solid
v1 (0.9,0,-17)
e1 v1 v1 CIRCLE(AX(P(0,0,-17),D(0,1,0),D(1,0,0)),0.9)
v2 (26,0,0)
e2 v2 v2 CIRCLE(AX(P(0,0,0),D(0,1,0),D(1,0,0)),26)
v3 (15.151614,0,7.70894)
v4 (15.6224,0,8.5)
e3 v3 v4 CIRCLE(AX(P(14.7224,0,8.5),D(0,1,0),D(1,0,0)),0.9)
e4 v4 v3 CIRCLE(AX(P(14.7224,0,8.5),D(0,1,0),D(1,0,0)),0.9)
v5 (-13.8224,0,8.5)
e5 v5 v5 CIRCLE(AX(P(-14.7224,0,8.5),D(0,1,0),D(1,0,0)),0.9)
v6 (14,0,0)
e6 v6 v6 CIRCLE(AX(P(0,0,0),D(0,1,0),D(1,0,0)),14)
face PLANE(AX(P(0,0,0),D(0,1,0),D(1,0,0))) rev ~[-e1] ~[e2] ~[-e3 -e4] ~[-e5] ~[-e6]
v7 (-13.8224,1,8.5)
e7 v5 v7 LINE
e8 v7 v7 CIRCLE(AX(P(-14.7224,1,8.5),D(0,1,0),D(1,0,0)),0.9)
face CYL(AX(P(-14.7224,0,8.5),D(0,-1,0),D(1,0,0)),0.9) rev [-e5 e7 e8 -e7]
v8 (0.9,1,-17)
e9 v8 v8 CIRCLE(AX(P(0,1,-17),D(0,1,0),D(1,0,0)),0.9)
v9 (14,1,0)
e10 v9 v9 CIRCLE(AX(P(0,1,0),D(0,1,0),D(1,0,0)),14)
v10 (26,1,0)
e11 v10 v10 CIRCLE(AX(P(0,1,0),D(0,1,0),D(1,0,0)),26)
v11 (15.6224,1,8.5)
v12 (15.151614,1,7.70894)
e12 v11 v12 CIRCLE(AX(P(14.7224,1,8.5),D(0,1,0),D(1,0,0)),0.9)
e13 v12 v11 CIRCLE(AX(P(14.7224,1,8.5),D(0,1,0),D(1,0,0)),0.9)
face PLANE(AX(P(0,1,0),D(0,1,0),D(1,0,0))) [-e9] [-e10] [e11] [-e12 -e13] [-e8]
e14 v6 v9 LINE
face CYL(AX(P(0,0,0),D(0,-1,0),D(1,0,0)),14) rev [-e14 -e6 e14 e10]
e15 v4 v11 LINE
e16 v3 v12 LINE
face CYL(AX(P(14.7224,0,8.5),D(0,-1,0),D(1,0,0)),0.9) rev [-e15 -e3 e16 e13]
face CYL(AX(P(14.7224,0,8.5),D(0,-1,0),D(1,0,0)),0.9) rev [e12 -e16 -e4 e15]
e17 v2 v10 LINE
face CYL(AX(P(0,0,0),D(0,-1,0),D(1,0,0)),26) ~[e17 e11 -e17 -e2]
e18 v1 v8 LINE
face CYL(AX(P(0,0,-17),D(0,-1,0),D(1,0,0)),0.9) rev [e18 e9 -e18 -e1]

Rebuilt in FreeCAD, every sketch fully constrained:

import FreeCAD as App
import Part
import Sketcher
from FreeCAD import Vector
Q = App.Units.Quantity

doc = App.newDocument("Part")
body = doc.addObject("PartDesign::Body", "Body")

sketch1 = body.newObject("Sketcher::SketchObject", "Sketch")
sketch1.AttachmentSupport = (doc.getObject("XZ_Plane"), [""])
sketch1.MapMode = "FlatFace"
sketch1.addGeometry(Part.Circle(Vector(0, 0, 0), Vector(0, 0, 1), 26), False)
sketch1.addGeometry(Part.Circle(Vector(-14.7, 8.5, 0), Vector(0, 0, 1), 0.9), False)
sketch1.addGeometry(Part.Circle(Vector(14.7, 8.5, 0), Vector(0, 0, 1), 0.9), False)
sketch1.addGeometry(Part.Circle(Vector(0, 0, 0), Vector(0, 0, 1), 14), False)
sketch1.addGeometry(Part.Circle(Vector(0, -17, 0), Vector(0, 0, 1), 0.9), False)
sketch1.addConstraint(Sketcher.Constraint("Coincident", 0, 3, -1, 1))
sketch1.addConstraint(Sketcher.Constraint("Coincident", 3, 3, -1, 1))
sketch1.addConstraint(Sketcher.Constraint("Equal", 1, 2))
sketch1.addConstraint(Sketcher.Constraint("Equal", 2, 4))
sketch1.addConstraint(Sketcher.Constraint("Symmetric", 1, 3, 2, 3, -2))
sketch1.addConstraint(Sketcher.Constraint("PointOnObject", 4, 3, -2))
sketch1.addConstraint(Sketcher.Constraint("Diameter", 0, Q("52 mm")))
sketch1.addConstraint(Sketcher.Constraint("Diameter", 3, Q("28 mm")))
sketch1.addConstraint(Sketcher.Constraint("Diameter", 1, Q("1.8 mm")))
sketch1.addConstraint(Sketcher.Constraint("DistanceY", 4, 3, -1, 1, Q("17 mm")))
sketch1.addConstraint(Sketcher.Constraint("DistanceY", -1, 1, 1, 3, Q("8.5 mm")))
sketch1.addConstraint(Sketcher.Constraint("DistanceX", 1, 3, -1, 1, Q("14.7224 mm")))
pad1 = body.newObject("PartDesign::Pad", "Pad")
pad1.Profile = sketch1
pad1.Length = 1
pad1.Reversed = True

doc.recompute()
